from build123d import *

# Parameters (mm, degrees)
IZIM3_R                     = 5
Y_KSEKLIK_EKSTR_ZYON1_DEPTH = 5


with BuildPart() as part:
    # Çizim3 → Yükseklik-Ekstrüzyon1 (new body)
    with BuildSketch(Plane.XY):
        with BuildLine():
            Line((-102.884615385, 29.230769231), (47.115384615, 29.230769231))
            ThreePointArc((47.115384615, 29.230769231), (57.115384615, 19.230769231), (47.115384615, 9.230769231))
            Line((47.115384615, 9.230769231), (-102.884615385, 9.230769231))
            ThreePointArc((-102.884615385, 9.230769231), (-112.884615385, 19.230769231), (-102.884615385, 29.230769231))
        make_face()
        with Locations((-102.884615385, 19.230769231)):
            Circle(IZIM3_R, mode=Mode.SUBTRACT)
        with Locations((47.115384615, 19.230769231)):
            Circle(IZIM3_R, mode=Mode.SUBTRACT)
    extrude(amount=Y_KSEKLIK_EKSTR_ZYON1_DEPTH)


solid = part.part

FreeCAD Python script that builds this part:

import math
import FreeCAD as App
import Part
import Sketcher

doc = App.newDocument("Part")
body = doc.addObject("PartDesign::Body", "Body")

sketch1 = body.newObject("Sketcher::SketchObject", "Sketch")
sketch1.AttachmentSupport = (doc.getObject("XY_Plane"), [""])
sketch1.MapMode = "FlatFace"
sketch1.addGeometry([
    Part.LineSegment(App.Vector(47, 29, 0), App.Vector(-103, 29, 0)),
    Part.ArcOfCircle(Part.Circle(App.Vector(-103, 19, 0), App.Vector(0, 0, 1), 10), math.radians(90), math.radians(270)),
    Part.LineSegment(App.Vector(-103, 9, 0), App.Vector(47, 9, 0)),
    Part.ArcOfCircle(Part.Circle(App.Vector(47, 19, 0), App.Vector(0, 0, 1), 10), math.radians(-90), math.radians(90)),
    Part.Circle(App.Vector(47, 19, 0), App.Vector(0, 0, 1), 5),
    Part.Circle(App.Vector(-103, 19, 0), App.Vector(0, 0, 1), 5),
], False)
sketch1.addConstraint([
    Sketcher.Constraint("Tangent", 0, 2, 1, 1),
    Sketcher.Constraint("Tangent", 1, 2, 2, 1),
    Sketcher.Constraint("Tangent", 2, 2, 3, 1),
    Sketcher.Constraint("Tangent", 3, 2, 0, 1),
    Sketcher.Constraint("Horizontal", 0),
    Sketcher.Constraint("Horizontal", 2),
    Sketcher.Constraint("Coincident", 4, 3, 3, 3),
    Sketcher.Constraint("Coincident", 5, 3, 1, 3),
    Sketcher.Constraint("Equal", 4, 5),
    Sketcher.Constraint("Diameter", 4, 10.0),
    Sketcher.Constraint("Radius", 1, 10.0),
    Sketcher.Constraint("DistanceX", 0, 2, 0, 1, 150.0),
    Sketcher.Constraint("DistanceY", -1, 1, 1, 3, 19.230769),
    Sketcher.Constraint("DistanceX", 1, 3, -1, 1, 102.884615),
])
pad1 = body.newObject("PartDesign::Pad", "Pad")
pad1.Profile = sketch1
pad1.Length = 5

doc.recompute()
